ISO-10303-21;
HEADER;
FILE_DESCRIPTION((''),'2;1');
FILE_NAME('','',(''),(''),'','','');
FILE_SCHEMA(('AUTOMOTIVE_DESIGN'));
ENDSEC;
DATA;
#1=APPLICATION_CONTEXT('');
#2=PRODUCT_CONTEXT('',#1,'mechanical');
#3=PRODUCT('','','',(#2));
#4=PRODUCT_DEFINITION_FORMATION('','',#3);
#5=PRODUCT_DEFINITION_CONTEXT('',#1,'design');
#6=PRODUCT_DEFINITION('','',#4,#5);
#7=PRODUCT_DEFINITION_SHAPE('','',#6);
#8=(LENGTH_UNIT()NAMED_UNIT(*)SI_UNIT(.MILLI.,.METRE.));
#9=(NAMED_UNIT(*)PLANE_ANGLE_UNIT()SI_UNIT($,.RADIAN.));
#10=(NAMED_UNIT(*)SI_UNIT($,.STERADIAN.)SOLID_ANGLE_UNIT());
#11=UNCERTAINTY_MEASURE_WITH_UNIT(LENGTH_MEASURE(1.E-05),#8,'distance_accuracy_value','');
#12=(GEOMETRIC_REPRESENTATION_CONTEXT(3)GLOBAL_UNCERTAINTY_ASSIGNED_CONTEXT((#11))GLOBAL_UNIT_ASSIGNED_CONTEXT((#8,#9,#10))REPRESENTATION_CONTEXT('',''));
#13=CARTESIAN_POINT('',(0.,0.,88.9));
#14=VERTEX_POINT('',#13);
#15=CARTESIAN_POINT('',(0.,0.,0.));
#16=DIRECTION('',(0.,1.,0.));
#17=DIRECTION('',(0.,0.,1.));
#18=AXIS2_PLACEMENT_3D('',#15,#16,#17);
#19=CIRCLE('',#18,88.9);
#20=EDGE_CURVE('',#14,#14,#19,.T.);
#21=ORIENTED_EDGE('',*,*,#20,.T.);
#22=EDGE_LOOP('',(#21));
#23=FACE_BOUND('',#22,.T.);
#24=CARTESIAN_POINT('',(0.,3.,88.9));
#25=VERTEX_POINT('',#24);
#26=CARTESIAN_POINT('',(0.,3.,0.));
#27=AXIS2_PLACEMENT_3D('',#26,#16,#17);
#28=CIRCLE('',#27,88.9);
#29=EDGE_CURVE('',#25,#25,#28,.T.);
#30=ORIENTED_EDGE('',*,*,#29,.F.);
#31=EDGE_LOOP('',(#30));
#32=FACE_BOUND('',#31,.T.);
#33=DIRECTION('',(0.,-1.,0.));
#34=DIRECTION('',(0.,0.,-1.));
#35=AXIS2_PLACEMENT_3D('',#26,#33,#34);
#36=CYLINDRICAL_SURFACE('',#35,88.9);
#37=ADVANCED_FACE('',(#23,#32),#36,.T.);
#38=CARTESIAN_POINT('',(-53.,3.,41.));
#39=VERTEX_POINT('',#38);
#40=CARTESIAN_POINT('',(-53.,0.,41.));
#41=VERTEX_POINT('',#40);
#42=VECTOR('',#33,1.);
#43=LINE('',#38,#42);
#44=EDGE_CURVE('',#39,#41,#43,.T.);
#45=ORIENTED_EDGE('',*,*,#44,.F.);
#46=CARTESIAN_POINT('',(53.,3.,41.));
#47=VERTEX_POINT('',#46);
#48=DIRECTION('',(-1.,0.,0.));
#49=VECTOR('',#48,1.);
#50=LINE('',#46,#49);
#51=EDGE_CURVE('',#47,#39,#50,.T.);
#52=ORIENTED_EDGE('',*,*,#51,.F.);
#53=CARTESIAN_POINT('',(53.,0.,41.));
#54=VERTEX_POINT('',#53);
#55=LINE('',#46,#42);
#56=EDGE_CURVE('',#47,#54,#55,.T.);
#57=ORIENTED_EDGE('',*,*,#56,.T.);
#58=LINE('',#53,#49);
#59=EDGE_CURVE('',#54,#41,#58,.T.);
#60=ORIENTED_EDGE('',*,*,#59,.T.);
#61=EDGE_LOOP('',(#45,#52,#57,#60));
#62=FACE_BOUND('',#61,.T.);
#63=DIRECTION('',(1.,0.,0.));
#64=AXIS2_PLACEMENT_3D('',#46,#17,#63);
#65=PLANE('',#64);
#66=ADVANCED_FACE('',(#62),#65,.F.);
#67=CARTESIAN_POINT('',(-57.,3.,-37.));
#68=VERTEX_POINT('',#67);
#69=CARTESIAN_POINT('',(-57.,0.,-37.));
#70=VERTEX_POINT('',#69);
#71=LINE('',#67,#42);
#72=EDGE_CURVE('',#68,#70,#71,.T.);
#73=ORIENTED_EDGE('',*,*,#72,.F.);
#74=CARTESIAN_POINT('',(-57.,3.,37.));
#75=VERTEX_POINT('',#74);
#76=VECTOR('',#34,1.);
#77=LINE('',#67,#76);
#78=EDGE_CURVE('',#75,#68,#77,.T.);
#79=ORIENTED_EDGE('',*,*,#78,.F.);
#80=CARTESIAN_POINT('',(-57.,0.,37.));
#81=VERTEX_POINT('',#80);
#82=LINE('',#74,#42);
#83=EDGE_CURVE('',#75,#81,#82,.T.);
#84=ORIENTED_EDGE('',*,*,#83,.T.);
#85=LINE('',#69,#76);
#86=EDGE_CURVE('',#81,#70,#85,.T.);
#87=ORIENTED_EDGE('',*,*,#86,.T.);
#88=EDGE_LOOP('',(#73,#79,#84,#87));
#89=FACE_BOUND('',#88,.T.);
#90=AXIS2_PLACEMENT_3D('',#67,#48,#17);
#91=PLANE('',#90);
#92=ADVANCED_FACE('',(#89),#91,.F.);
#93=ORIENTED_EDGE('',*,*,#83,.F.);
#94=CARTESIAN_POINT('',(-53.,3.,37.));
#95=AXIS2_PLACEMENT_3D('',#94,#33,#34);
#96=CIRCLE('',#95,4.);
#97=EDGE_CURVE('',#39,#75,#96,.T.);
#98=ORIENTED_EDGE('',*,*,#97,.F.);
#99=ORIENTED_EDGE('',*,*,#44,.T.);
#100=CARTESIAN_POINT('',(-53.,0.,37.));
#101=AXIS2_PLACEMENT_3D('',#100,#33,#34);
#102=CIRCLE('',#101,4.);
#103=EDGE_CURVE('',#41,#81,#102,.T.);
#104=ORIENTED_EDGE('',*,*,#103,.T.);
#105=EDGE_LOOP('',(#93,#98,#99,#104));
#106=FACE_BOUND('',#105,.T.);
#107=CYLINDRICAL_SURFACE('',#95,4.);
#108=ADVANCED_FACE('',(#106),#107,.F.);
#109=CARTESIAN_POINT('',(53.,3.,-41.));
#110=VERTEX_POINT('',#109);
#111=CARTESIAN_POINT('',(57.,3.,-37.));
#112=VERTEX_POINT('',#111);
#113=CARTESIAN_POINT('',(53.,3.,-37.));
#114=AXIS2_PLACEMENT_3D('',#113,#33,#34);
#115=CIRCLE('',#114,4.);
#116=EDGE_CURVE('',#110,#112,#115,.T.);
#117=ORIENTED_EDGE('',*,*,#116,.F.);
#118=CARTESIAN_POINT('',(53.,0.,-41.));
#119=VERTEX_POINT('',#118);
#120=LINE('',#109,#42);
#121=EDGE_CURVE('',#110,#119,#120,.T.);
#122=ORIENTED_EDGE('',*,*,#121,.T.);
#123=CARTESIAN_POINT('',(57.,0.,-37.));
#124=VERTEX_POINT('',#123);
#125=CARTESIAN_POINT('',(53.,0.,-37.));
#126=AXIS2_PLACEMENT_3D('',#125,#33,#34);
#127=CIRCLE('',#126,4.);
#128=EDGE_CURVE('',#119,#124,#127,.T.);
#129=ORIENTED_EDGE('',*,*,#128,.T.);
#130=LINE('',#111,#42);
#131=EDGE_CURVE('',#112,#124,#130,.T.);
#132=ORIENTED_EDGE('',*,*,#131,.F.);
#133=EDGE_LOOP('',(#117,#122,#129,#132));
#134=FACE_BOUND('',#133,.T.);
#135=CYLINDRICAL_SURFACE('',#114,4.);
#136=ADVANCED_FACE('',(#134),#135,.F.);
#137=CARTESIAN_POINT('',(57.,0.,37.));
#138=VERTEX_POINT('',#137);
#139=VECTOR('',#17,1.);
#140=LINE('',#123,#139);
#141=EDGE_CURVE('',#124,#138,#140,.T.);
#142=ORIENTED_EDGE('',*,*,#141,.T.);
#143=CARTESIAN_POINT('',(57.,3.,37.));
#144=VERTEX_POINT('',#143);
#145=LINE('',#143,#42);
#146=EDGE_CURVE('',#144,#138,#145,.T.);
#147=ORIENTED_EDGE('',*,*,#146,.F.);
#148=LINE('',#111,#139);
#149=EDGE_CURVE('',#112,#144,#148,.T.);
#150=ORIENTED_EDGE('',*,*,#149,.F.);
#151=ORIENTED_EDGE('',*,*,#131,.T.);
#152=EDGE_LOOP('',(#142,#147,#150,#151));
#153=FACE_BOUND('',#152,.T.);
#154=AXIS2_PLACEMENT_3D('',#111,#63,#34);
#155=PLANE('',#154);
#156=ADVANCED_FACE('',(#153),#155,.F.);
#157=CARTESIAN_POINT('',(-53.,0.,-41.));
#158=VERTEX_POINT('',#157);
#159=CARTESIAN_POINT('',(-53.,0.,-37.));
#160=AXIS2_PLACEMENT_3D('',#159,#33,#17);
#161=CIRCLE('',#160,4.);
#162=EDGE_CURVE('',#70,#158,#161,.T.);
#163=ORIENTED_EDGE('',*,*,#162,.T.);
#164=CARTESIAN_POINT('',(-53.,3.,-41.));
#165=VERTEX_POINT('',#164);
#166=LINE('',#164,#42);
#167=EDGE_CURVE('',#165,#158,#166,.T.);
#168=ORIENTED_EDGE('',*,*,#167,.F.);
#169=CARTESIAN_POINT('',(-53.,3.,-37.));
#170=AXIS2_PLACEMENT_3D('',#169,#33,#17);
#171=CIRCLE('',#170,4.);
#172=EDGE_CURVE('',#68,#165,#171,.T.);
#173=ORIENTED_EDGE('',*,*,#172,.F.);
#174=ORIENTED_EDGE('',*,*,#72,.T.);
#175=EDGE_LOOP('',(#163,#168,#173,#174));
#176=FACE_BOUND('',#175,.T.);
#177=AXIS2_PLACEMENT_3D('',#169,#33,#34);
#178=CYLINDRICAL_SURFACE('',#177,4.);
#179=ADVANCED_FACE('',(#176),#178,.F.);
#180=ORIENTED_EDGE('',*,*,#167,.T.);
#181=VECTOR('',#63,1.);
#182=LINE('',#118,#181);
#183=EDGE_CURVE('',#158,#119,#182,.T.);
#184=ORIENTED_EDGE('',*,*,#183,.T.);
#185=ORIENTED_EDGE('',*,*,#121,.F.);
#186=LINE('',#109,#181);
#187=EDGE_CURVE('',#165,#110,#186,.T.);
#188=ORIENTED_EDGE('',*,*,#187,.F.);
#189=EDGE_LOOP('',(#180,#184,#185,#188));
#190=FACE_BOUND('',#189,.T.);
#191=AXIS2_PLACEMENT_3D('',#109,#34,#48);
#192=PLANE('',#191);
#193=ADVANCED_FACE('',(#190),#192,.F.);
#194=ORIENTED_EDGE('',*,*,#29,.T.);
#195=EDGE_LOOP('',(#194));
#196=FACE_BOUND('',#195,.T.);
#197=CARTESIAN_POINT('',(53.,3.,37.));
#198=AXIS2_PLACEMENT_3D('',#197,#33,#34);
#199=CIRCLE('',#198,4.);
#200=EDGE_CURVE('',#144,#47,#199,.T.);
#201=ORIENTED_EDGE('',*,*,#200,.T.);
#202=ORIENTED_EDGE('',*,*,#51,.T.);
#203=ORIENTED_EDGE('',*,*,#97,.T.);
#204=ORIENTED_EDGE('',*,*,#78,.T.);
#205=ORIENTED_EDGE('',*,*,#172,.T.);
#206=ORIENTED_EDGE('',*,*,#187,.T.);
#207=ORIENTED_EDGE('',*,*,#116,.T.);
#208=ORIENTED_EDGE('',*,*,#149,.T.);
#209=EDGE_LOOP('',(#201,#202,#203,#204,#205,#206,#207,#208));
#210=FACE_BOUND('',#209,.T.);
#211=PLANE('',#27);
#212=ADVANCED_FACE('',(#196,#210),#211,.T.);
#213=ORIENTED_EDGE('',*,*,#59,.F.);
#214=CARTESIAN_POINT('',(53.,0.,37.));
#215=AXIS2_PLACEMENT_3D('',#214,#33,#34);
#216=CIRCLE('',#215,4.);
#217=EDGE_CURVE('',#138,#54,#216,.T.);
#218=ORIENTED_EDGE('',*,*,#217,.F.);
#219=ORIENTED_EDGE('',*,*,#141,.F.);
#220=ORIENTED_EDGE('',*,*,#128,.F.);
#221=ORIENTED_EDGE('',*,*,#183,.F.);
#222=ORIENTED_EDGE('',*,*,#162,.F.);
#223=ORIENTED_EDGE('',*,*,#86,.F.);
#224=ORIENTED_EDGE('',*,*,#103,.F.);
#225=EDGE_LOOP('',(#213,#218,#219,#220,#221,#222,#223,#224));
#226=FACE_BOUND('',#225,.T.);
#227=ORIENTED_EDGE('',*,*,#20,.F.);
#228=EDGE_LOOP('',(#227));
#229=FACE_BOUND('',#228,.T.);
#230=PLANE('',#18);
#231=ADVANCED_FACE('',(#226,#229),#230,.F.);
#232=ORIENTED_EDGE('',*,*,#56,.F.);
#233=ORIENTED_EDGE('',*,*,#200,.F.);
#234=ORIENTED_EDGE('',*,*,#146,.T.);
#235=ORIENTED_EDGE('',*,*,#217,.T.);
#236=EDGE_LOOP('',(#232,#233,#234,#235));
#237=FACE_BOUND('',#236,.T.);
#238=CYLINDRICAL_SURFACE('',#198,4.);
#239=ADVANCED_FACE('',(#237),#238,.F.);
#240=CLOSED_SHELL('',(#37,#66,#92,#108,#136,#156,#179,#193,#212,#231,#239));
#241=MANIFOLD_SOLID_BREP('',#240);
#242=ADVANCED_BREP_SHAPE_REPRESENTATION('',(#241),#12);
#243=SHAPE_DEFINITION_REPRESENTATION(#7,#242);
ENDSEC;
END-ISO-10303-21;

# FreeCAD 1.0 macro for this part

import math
import FreeCAD as App
import Part
import Sketcher
Q = App.Units.Quantity

doc = App.newDocument("Part")
body = doc.addObject("PartDesign::Body", "Body")

sketch1 = body.newObject("Sketcher::SketchObject", "Sketch")
sketch1.AttachmentSupport = (doc.getObject("XZ_Plane"), [""])
sketch1.MapMode = "FlatFace"
sketch1.addGeometry(Part.Circle(App.Vector(0, 0, 0), App.Vector(0, 0, 1), 89), False)
sketch1.addConstraint(Sketcher.Constraint("Coincident", 0, 3, -1, 1))
sketch1.addConstraint(Sketcher.Constraint("Diameter", 0, Q("177.8 mm")))
pad1 = body.newObject("PartDesign::Pad", "Pad")
pad1.Profile = sketch1
pad1.Length = 3
pad1.Reversed = True

sketch2 = body.newObject("Sketcher::SketchObject", "Sketch001")
sketch2.AttachmentSupport = (doc.getObject("XZ_Plane"), [""])
sketch2.MapMode = "FlatFace"
sketch2.addGeometry(Part.LineSegment(App.Vector(-53, -41, 0), App.Vector(53, -41, 0)), False)
sketch2.addGeometry(Part.ArcOfCircle(Part.Circle(App.Vector(53, -37, 0), App.Vector(0, 0, 1), 4), math.radians(-90), math.radians(0)), False)
sketch2.addGeometry(Part.LineSegment(App.Vector(57, -37, 0), App.Vector(57, 37, 0)), False)
sketch2.addGeometry(Part.ArcOfCircle(Part.Circle(App.Vector(53, 37, 0), App.Vector(0, 0, 1), 4), math.radians(0), math.radians(90)), False)
sketch2.addGeometry(Part.LineSegment(App.Vector(53, 41, 0), App.Vector(-53, 41, 0)), False)
sketch2.addGeometry(Part.ArcOfCircle(Part.Circle(App.Vector(-53, 37, 0), App.Vector(0, 0, 1), 4), math.radians(90), math.radians(180)), False)
sketch2.addGeometry(Part.LineSegment(App.Vector(-57, 37, 0), App.Vector(-57, -37, 0)), False)
sketch2.addGeometry(Part.ArcOfCircle(Part.Circle(App.Vector(-53, -37, 0), App.Vector(0, 0, 1), 4), math.radians(180), math.radians(270)), False)
sketch2.addConstraint(Sketcher.Constraint("Tangent", 0, 2, 1, 1))
sketch2.addConstraint(Sketcher.Constraint("Tangent", 1, 2, 2, 1))
sketch2.addConstraint(Sketcher.Constraint("Tangent", 2, 2, 3, 1))
sketch2.addConstraint(Sketcher.Constraint("Tangent", 3, 2, 4, 1))
sketch2.addConstraint(Sketcher.Constraint("Tangent", 4, 2, 5, 1))
sketch2.addConstraint(Sketcher.Constraint("Tangent", 5, 2, 6, 1))
sketch2.addConstraint(Sketcher.Constraint("Tangent", 6, 2, 7, 1))
sketch2.addConstraint(Sketcher.Constraint("Tangent", 7, 2, 0, 1))
sketch2.addConstraint(Sketcher.Constraint("Horizontal", 0))
sketch2.addConstraint(Sketcher.Constraint("Vertical", 2))
sketch2.addConstraint(Sketcher.Constraint("Horizontal", 4))
sketch2.addConstraint(Sketcher.Constraint("Vertical", 6))
sketch2.addConstraint(Sketcher.Constraint("Equal", 1, 3))
sketch2.addConstraint(Sketcher.Constraint("Equal", 3, 5))
sketch2.addConstraint(Sketcher.Constraint("Equal", 5, 7))
sketch2.addConstraint(Sketcher.Constraint("Symmetric", 1, 3, 5, 3, -1, 1))
sketch2.addConstraint(Sketcher.Constraint("Radius", 1, Q("4 mm")))
sketch2.addConstraint(Sketcher.Constraint("DistanceX", 0, 1, 0, 2, Q("106 mm")))
sketch2.addConstraint(Sketcher.Constraint("DistanceY", 2, 1, 2, 2, Q("74 mm")))
pocket1 = body.newObject("PartDesign::Pocket", "Pocket")
pocket1.Profile = sketch2
pocket1.Length = 3

doc.recompute()
